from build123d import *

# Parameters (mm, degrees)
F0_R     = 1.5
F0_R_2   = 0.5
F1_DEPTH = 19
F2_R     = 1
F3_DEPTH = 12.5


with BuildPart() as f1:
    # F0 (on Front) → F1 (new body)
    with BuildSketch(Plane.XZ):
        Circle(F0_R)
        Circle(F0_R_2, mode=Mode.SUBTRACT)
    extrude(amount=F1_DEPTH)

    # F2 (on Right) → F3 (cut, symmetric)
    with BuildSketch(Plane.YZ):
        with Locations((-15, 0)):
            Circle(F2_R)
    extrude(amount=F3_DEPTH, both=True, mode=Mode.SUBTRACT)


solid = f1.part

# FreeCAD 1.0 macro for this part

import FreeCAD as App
import Part
import Sketcher

V = App.Vector

doc = App.newDocument("Part")
body = doc.addObject("PartDesign::Body", "Body")

# Sketch on XZ plane
sketch1 = body.newObject("Sketcher::SketchObject", "Sketch")
sketch1.AttachmentSupport = (doc.getObject("XZ_Plane"), [""])
sketch1.MapMode = "FlatFace"
sketch1.addGeometry([
    Part.Circle(V(0, 0, 0), V(0, 0, 1), 1.5),
    Part.Circle(V(0, 0, 0), V(0, 0, 1), 0.5),
], False)
sketch1.addConstraint([
    Sketcher.Constraint("Coincident", 0, 3, -1, 1),
    Sketcher.Constraint("Coincident", 1, 3, -1, 1),
    Sketcher.Constraint("Diameter", 0, 3.0),
    Sketcher.Constraint("Diameter", 1, 1.0),
])
pad1 = body.newObject("PartDesign::Pad", "Pad")
pad1.Profile = sketch1
pad1.Length = 19

# Sketch on YZ plane
sketch2 = body.newObject("Sketcher::SketchObject", "Sketch001")
sketch2.AttachmentSupport = (doc.getObject("YZ_Plane"), [""])
sketch2.MapMode = "FlatFace"
sketch2.addGeometry(Part.Circle(V(-15, 0, 0), V(0, 0, 1), 1), False)
sketch2.addConstraint([
    Sketcher.Constraint("PointOnObject", 0, 3, -1),
    Sketcher.Constraint("Diameter", 0, 2.0),
    Sketcher.Constraint("DistanceX", 0, 3, -1, 1, 15.0),
])
pocket1 = body.newObject("PartDesign::Pocket", "Pocket")
pocket1.Profile = sketch2
pocket1.Length = 25
pocket1.Midplane = True

doc.recompute()
